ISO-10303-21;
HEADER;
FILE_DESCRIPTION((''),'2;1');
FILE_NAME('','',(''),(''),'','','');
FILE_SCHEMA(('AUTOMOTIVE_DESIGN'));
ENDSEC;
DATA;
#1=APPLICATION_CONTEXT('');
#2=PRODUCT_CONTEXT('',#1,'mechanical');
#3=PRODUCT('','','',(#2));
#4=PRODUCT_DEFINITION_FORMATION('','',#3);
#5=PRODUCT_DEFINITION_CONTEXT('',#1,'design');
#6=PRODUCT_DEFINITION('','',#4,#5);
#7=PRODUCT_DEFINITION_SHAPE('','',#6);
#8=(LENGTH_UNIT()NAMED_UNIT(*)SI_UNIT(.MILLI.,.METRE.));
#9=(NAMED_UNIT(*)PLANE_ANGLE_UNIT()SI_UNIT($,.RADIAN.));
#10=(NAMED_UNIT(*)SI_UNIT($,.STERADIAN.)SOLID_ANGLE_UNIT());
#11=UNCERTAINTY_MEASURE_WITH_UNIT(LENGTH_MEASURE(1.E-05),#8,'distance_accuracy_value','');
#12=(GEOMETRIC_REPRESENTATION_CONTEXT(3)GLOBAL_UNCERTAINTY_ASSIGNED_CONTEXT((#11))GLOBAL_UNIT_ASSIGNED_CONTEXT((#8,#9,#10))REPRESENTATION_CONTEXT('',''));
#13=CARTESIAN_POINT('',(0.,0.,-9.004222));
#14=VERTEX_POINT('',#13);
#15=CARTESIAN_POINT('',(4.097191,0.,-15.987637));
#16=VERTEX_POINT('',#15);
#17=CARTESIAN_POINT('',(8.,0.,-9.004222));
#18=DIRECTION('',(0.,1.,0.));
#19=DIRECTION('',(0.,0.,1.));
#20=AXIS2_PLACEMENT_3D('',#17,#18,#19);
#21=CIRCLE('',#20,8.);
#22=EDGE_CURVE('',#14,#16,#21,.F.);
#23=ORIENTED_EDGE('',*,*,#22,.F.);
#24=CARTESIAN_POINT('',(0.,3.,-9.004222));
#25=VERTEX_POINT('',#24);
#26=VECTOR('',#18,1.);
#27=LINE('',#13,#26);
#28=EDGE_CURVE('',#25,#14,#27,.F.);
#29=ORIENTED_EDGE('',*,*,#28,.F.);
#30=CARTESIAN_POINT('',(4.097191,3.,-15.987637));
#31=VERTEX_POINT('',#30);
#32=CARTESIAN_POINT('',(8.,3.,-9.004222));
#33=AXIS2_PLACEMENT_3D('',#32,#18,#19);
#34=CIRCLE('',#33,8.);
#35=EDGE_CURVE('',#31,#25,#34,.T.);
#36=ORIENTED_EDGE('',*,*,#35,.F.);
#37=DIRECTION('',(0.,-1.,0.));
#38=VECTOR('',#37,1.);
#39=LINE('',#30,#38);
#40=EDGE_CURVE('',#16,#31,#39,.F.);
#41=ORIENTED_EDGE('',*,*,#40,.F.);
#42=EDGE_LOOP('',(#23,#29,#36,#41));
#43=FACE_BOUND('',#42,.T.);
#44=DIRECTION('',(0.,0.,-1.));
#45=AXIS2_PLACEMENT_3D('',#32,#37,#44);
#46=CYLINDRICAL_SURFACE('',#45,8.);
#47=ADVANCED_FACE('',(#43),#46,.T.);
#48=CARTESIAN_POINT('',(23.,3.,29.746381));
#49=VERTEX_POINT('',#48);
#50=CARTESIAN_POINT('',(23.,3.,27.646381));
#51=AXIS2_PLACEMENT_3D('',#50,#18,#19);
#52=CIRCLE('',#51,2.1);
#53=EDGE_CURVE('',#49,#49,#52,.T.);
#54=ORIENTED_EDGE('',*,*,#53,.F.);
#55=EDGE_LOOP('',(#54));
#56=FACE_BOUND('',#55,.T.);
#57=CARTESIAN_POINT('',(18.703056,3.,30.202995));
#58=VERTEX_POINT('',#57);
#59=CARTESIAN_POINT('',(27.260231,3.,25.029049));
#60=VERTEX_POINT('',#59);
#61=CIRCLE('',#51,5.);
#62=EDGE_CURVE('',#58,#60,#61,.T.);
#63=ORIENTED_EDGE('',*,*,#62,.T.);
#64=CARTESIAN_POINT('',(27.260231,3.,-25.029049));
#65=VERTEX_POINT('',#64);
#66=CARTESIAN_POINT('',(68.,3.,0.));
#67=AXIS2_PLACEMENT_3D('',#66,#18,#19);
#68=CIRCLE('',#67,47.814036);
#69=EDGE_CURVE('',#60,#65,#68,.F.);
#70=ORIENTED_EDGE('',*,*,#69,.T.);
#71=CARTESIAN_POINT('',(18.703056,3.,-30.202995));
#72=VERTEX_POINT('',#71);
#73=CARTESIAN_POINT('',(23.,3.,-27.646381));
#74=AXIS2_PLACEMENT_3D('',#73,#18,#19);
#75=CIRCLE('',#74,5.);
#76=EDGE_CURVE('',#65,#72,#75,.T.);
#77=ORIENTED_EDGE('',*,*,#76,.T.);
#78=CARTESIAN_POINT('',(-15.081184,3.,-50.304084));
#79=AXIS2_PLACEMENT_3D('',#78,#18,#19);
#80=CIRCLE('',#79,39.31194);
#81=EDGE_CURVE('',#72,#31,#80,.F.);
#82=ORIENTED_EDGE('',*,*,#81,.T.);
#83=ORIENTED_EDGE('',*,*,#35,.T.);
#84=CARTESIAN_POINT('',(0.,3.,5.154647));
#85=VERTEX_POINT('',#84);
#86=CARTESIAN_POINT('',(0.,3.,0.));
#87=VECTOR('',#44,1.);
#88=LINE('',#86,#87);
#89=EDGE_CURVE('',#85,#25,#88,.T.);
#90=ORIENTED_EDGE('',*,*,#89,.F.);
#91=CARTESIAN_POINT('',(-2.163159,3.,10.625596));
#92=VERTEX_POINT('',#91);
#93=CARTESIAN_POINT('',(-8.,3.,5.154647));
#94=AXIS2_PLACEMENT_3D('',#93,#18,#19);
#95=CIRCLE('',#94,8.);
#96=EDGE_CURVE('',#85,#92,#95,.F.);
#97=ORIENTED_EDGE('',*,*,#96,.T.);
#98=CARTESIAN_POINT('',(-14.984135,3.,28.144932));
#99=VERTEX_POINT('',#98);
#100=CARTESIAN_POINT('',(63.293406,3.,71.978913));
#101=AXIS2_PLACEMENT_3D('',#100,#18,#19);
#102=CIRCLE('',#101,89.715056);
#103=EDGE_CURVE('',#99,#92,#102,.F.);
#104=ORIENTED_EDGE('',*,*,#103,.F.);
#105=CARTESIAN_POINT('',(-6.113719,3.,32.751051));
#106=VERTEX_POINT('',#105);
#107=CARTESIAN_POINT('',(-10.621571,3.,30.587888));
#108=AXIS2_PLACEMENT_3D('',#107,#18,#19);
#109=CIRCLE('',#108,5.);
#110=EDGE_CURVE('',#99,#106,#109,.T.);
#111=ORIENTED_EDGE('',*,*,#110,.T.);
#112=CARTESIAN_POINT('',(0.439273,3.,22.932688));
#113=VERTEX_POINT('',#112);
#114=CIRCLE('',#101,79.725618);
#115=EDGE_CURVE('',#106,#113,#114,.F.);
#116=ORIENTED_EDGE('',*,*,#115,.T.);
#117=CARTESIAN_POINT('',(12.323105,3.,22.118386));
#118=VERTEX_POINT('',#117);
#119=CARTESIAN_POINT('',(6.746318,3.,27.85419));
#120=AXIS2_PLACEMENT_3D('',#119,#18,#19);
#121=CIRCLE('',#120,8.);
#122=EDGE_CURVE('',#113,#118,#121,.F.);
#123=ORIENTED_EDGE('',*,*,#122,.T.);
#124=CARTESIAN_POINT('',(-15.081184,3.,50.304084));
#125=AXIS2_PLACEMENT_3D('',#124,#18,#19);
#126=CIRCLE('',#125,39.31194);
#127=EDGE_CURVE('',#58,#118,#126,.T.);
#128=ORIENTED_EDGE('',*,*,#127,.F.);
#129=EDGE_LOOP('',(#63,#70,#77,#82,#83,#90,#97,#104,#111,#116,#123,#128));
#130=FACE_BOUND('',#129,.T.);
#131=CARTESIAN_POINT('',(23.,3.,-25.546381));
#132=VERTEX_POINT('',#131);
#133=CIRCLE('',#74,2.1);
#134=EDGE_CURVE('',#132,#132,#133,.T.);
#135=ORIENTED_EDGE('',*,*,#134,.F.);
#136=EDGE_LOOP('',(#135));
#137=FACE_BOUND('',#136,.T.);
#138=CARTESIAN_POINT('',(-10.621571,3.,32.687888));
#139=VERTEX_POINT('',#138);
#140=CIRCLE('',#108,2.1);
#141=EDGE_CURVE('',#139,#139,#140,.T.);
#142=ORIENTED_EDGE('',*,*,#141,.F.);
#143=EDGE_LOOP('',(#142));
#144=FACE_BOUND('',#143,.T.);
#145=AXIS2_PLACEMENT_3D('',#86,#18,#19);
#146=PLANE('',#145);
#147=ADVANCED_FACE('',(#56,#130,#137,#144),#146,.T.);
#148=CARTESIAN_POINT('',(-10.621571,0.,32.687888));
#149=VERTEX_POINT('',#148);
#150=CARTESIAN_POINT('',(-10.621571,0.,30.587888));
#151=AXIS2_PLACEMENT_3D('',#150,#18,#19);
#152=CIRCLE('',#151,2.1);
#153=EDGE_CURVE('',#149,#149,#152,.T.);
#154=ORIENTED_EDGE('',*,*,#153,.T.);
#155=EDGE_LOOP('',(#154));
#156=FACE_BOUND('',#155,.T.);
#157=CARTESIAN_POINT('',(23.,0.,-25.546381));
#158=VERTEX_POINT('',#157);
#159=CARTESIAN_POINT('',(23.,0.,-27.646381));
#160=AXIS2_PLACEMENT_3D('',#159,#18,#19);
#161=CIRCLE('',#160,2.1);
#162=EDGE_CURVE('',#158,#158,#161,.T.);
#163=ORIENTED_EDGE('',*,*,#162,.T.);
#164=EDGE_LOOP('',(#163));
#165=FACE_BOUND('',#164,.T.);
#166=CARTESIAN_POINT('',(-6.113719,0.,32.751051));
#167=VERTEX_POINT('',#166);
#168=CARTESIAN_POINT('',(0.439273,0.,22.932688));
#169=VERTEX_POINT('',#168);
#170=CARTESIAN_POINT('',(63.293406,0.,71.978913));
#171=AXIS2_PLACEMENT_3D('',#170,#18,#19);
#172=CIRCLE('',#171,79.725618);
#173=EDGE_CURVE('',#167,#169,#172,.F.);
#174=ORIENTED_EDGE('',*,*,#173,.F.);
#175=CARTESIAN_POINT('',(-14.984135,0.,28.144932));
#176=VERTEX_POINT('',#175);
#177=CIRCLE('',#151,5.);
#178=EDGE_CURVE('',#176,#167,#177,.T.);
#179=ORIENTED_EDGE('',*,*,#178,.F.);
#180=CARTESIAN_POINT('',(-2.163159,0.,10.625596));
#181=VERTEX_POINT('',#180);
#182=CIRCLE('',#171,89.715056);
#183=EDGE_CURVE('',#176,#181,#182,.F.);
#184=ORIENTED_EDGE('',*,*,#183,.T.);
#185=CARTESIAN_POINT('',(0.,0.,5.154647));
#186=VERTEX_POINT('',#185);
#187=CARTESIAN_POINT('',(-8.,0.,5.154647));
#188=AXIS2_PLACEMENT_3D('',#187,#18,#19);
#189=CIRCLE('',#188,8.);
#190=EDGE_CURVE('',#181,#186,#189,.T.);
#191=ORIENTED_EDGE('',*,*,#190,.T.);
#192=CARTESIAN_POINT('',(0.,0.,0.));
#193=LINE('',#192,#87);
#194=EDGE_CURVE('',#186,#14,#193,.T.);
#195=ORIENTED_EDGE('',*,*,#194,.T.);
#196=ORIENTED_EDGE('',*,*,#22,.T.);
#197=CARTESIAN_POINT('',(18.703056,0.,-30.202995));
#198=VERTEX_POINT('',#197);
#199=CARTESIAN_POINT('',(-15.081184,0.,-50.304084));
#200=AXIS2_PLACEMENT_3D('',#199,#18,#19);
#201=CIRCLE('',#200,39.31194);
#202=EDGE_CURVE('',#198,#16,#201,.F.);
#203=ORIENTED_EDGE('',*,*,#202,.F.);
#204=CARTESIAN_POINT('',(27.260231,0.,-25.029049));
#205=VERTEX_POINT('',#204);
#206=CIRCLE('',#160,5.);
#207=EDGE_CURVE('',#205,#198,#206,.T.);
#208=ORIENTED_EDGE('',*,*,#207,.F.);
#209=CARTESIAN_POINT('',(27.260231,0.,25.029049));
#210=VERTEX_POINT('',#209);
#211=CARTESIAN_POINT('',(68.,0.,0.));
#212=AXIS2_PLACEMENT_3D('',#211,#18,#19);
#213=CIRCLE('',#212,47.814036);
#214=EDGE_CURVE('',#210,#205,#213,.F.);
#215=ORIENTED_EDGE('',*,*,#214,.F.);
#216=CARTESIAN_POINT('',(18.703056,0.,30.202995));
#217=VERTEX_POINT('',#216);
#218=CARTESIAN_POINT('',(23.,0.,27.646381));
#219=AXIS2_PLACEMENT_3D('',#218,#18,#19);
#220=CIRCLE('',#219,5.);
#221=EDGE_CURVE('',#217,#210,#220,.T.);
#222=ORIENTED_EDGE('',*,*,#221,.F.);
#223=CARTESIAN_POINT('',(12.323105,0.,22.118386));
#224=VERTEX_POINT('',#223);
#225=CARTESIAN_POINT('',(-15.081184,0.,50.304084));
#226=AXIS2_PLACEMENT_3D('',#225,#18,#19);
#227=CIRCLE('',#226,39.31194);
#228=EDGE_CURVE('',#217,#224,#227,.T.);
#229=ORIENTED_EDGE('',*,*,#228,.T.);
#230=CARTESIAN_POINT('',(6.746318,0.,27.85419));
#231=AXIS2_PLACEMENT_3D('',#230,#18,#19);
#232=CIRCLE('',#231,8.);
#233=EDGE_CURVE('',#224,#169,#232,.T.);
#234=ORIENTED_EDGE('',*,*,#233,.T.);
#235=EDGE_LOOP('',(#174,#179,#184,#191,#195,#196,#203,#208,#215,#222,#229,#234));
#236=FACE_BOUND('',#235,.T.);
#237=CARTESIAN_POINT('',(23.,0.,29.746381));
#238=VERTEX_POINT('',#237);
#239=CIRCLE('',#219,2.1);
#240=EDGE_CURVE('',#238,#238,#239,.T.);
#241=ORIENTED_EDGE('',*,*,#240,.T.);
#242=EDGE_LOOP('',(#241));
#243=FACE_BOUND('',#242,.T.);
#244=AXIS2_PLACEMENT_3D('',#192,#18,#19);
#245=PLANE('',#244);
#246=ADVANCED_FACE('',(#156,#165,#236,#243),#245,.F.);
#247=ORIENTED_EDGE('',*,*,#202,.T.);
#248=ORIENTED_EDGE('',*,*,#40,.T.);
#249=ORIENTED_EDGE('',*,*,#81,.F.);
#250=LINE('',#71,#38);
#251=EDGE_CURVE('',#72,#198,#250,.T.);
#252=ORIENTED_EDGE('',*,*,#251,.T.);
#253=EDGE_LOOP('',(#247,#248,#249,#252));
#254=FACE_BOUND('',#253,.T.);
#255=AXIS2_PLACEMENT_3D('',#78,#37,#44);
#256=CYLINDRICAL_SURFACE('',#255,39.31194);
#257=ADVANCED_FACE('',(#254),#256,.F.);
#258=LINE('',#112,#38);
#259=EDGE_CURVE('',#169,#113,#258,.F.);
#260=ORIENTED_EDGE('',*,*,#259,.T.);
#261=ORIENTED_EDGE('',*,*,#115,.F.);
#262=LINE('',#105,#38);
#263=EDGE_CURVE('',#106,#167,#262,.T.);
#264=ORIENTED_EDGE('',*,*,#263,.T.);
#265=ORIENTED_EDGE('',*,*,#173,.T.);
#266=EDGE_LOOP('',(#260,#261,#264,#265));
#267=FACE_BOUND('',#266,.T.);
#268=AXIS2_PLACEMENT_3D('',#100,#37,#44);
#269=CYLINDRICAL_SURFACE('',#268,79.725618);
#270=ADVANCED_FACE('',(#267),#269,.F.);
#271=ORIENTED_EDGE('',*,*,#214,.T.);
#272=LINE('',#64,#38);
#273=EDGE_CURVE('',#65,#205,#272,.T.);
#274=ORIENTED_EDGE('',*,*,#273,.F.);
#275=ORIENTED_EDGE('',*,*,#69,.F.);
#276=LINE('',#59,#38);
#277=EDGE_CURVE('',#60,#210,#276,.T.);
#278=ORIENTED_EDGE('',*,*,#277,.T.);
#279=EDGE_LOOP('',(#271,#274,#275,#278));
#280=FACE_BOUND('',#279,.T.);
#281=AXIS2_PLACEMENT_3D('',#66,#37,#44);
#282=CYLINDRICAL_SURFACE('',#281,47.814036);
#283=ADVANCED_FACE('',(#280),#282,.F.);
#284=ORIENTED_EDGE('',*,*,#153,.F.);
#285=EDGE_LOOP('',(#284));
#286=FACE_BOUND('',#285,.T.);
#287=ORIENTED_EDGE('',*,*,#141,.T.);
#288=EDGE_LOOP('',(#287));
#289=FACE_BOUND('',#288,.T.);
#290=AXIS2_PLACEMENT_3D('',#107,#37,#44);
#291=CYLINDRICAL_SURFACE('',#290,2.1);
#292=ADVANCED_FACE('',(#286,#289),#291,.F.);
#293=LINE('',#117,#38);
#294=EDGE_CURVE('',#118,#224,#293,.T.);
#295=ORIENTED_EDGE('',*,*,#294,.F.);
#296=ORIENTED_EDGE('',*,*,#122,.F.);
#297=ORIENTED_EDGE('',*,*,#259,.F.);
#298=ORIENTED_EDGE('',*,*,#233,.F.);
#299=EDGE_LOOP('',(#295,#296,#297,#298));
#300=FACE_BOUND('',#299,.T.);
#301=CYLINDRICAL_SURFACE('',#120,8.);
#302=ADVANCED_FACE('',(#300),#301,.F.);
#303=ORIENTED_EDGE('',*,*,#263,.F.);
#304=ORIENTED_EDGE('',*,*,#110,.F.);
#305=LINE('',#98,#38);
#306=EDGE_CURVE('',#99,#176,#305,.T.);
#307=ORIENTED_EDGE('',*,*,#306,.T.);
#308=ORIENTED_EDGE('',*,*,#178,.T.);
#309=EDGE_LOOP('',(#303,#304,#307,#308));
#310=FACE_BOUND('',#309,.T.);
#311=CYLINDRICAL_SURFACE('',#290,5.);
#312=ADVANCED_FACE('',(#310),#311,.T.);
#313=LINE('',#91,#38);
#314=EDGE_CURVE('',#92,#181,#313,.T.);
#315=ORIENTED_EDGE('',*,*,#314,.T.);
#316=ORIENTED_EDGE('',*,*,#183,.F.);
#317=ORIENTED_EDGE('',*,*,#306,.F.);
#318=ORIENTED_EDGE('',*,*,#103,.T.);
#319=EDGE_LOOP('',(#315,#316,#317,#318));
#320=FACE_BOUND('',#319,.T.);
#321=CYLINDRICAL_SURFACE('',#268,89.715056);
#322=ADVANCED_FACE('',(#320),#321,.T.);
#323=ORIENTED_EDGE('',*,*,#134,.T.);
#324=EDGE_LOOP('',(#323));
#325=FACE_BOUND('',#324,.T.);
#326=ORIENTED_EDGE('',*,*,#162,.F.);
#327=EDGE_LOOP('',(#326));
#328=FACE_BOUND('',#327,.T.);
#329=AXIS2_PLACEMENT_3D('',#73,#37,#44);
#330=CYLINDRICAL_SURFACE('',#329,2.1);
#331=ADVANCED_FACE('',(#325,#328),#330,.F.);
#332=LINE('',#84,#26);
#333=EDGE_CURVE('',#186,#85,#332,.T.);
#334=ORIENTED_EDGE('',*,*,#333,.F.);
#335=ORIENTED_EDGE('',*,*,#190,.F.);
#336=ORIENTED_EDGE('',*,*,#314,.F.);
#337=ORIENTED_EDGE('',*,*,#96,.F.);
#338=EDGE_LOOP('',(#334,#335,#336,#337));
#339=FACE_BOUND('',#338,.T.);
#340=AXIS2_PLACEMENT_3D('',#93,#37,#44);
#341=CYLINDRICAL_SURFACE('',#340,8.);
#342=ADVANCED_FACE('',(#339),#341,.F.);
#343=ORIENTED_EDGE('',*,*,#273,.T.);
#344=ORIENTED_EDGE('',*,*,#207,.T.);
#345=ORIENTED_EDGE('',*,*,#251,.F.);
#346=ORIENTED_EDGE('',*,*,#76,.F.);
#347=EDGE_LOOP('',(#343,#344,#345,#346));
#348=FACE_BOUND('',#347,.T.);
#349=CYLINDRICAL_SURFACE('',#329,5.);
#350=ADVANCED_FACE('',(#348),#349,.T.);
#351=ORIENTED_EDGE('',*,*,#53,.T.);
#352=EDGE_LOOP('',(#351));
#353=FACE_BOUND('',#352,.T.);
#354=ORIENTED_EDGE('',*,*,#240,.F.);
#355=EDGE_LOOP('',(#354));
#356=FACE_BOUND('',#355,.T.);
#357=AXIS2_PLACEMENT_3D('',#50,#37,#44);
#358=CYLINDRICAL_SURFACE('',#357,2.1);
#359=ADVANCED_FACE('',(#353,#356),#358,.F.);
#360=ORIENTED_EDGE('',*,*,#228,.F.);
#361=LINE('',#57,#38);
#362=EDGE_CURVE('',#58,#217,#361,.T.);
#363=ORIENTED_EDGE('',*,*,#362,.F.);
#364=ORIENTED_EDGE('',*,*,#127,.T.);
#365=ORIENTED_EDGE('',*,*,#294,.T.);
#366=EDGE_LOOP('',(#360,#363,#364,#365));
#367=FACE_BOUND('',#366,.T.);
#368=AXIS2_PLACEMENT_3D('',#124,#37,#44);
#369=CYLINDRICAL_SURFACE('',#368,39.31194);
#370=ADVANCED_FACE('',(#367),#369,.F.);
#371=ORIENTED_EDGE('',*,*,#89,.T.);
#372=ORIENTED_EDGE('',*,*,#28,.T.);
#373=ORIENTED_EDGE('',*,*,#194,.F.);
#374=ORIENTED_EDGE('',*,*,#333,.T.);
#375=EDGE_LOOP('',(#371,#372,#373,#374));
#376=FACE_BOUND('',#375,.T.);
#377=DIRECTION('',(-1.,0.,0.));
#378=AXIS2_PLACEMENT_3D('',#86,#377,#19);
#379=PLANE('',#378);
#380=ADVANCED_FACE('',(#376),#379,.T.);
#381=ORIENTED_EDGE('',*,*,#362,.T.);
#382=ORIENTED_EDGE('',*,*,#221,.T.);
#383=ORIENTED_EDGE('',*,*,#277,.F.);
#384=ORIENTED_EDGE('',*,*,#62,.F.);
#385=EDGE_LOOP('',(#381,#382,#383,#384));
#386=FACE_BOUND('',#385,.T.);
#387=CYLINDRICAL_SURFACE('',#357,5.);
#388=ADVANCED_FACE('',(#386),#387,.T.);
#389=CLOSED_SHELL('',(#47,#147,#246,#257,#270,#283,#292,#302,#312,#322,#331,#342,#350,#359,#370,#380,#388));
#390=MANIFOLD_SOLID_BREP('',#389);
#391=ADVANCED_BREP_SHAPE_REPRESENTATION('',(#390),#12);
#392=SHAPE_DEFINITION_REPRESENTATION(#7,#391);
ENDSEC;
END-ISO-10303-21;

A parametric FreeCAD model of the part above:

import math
import FreeCAD as App
import Part
import Sketcher
from FreeCAD import Vector


def edges_at(feature, points):
    """Names of the edges that pass closest to the given points."""
    edges = feature.Shape.Edges
    near = lambda p: min(range(len(edges)), key=lambda i: edges[i].distToShape(Part.Vertex(*p))[0])
    return sorted({f"Edge{near(p) + 1}" for p in points})

doc = App.newDocument("Part")
body = doc.addObject("PartDesign::Body", "Body")

sketch1 = body.newObject("Sketcher::SketchObject", "Sketch")
sketch1.AttachmentSupport = (doc.getObject("XZ_Plane"), [""])
sketch1.MapMode = "FlatFace"
sketch1.addGeometry([
    Part.ArcOfCircle(Part.Circle(Vector(63.3, 72, 0), Vector(0, 0, 1), 79.7), math.radians(-150.53), math.radians(-136.3)),
    Part.ArcOfCircle(Part.Circle(Vector(-15.1, 50.3, 0), Vector(0, 0, 1), 39.3), math.radians(-58), math.radians(-31)),
    Part.ArcOfCircle(Part.Circle(Vector(23, 27.6, 0), Vector(0, 0, 1), 5), math.radians(-32), math.radians(149)),
    Part.ArcOfCircle(Part.Circle(Vector(68, 0, 0), Vector(0, 0, 1), 47.8), math.radians(148), math.radians(212)),
    Part.ArcOfCircle(Part.Circle(Vector(23, -27.6, 0), Vector(0, 0, 1), 5), math.radians(-149), math.radians(32)),
    Part.ArcOfCircle(Part.Circle(Vector(-15.1, -50.3, 0), Vector(0, 0, 1), 39.3), math.radians(31), math.radians(67)),
    Part.LineSegment(Vector(0, -14, 0), Vector(0, 8.4, 0)),
    Part.ArcOfCircle(Part.Circle(Vector(63.3, 72, 0), Vector(0, 0, 1), 89.7), math.radians(-150.75), math.radians(-134.87)),
    Part.ArcOfCircle(Part.Circle(Vector(-10.6, 30.6, 0), Vector(0, 0, 1), 5), math.radians(26), math.radians(209)),
    Part.Circle(Vector(-10.6, 30.6, 0), Vector(0, 0, 1), 2.1),
    Part.Circle(Vector(23, 27.6, 0), Vector(0, 0, 1), 2.1),
    Part.Circle(Vector(23, -27.6, 0), Vector(0, 0, 1), 2.1),
], False)
sketch1.addConstraint([
    Sketcher.Constraint("Coincident", 0, 2, 1, 1),
    Sketcher.Constraint("Tangent", 1, 2, 2, 2),
    Sketcher.Constraint("Tangent", 2, 1, 3, 1),
    Sketcher.Constraint("Tangent", 3, 2, 4, 2),
    Sketcher.Constraint("Tangent", 4, 1, 5, 1),
    Sketcher.Constraint("Coincident", 5, 2, 6, 1),
    Sketcher.Constraint("Coincident", 6, 2, 7, 2),
    Sketcher.Constraint("Tangent", 7, 1, 8, 2),
    Sketcher.Constraint("Coincident", 8, 1, 0, 1),
    Sketcher.Constraint("Vertical", 6),
    Sketcher.Constraint("Coincident", 7, 3, 0, 3),
    Sketcher.Constraint("Coincident", 9, 3, 8, 3),
    Sketcher.Constraint("Coincident", 10, 3, 2, 3),
    Sketcher.Constraint("Coincident", 11, 3, 4, 3),
    Sketcher.Constraint("Equal", 2, 4),
    Sketcher.Constraint("Equal", 1, 5),
    Sketcher.Constraint("Equal", 4, 8),
    Sketcher.Constraint("Equal", 9, 10),
    Sketcher.Constraint("Equal", 10, 11),
    Sketcher.Constraint("Symmetric", 2, 3, 4, 3, -1),
    Sketcher.Constraint("PointOnObject", 5, 2, -2),
    Sketcher.Constraint("Vertical", 1, 3, 5, 3),
    Sketcher.Constraint("Radius", 2, 5.0),
    Sketcher.Constraint("Diameter", 9, 4.2),
    Sketcher.Constraint("DistanceX", -1, 1, 2, 3, 23.0),
    Sketcher.Constraint("DistanceX", -1, 1, 3, 3, 68.0),
    Sketcher.Constraint("DistanceY", 5, 2, -1, 1, 14.0),
    Sketcher.Constraint("Radius", 0, 79.725618),
    Sketcher.Constraint("Radius", 1, 39.31194),
    Sketcher.Constraint("DistanceY", 6, 1, 6, 2, 22.396399),
    Sketcher.Constraint("Radius", 3, 47.814036),
    Sketcher.Constraint("Radius", 7, 89.715056),
    Sketcher.Constraint("DistanceX", 8, 3, -1, 1, 10.621571),
    Sketcher.Constraint("DistanceX", 8, 1, -1, 1, 6.113719),
])
pad1 = body.newObject("PartDesign::Pad", "Pad")
pad1.Profile = sketch1
pad1.Length = 3
pad1.Reversed = True
doc.recompute()

fillet = body.newObject("PartDesign::Fillet", "Fillet")
fillet.Base = (pad1, edges_at(pad1, [(0, 1.5, -14), (5.65, 1.5, 16.903), (0, 1.5, 8.396)]))
fillet.Radius = 8

doc.recompute()
